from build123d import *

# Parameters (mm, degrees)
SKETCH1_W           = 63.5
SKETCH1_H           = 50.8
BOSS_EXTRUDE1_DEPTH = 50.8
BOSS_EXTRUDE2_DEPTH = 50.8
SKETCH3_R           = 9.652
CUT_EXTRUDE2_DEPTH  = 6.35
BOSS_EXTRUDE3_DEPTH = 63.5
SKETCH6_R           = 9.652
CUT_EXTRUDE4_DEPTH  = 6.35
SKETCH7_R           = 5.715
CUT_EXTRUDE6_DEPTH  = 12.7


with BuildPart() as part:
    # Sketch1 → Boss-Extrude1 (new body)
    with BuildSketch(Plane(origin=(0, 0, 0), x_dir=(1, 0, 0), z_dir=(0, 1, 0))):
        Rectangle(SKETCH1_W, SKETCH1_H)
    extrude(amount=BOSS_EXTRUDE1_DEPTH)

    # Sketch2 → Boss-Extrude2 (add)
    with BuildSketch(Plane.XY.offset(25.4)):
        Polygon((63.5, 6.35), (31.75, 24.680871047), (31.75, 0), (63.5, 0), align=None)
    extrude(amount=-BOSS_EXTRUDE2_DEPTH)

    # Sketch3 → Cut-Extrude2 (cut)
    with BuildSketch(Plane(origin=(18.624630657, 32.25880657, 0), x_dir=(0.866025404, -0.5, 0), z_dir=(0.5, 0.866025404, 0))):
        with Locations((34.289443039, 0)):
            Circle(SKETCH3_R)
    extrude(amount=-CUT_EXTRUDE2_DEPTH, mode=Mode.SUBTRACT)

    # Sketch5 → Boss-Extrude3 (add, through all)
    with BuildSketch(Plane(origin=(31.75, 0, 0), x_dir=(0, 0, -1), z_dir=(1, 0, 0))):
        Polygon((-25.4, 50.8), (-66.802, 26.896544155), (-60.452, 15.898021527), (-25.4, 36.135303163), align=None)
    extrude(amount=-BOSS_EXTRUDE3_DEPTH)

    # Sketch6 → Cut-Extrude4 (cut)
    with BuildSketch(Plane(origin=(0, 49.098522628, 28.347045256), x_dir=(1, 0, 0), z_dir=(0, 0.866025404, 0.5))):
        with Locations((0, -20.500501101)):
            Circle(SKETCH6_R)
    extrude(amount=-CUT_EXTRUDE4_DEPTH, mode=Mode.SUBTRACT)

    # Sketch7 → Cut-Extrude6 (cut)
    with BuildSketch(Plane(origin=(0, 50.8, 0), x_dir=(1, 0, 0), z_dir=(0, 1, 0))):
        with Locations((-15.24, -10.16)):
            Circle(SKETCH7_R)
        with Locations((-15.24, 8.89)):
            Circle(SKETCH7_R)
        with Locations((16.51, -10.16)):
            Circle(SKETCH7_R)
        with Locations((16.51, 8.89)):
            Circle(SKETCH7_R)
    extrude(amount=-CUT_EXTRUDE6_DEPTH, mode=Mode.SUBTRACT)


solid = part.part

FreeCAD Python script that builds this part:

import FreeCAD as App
import Part
import Sketcher

V = App.Vector
Q = App.Units.Quantity

doc = App.newDocument("Part")
body = doc.addObject("PartDesign::Body", "Body")

# Sketch on XZ plane
sketch1 = body.newObject("Sketcher::SketchObject", "Sketch")
sketch1.AttachmentSupport = (doc.getObject("XZ_Plane"), [""])
sketch1.MapMode = "FlatFace"
sketch1.addGeometry(Part.LineSegment(V(-32, -25, 0), V(-32, 25, 0)), False)
sketch1.addGeometry(Part.LineSegment(V(-32, 25, 0), V(32, 25, 0)), False)
sketch1.addGeometry(Part.LineSegment(V(32, 25, 0), V(32, -25, 0)), False)
sketch1.addGeometry(Part.LineSegment(V(32, -25, 0), V(-32, -25, 0)), False)
sketch1.addConstraint(Sketcher.Constraint("Coincident", 0, 2, 1, 1))
sketch1.addConstraint(Sketcher.Constraint("Coincident", 1, 2, 2, 1))
sketch1.addConstraint(Sketcher.Constraint("Coincident", 2, 2, 3, 1))
sketch1.addConstraint(Sketcher.Constraint("Coincident", 3, 2, 0, 1))
sketch1.addConstraint(Sketcher.Constraint("Vertical", 0))
sketch1.addConstraint(Sketcher.Constraint("Horizontal", 1))
sketch1.addConstraint(Sketcher.Constraint("Vertical", 2))
sketch1.addConstraint(Sketcher.Constraint("Horizontal", 3))
sketch1.addConstraint(Sketcher.Constraint("Symmetric", 0, 2, 2, 2, -1, 1))
sketch1.addConstraint(Sketcher.Constraint("DistanceY", 0, 1, 0, 2, Q("2 in")))
sketch1.addConstraint(Sketcher.Constraint("DistanceX", 1, 1, 1, 2, Q("2.5 in")))
pad1 = body.newObject("PartDesign::Pad", "Pad")
pad1.Profile = sketch1
pad1.Length = Q("2 in")
pad1.Reversed = True

# Sketch on XY plane
sketch2 = body.newObject("Sketcher::SketchObject", "Sketch001")
sketch2.AttachmentSupport = (doc.getObject("XY_Plane"), [""])
sketch2.MapMode = "FlatFace"
sketch2.AttachmentOffset = App.Placement(V(0, 0, 1 * 25.4), App.Rotation())
sketch2.addGeometry(Part.LineSegment(V(64, 6, 0), V(32, 25, 0)), False)
sketch2.addGeometry(Part.LineSegment(V(32, 25, 0), V(32, 0, 0)), False)
sketch2.addGeometry(Part.LineSegment(V(32, 0, 0), V(64, 0, 0)), False)
sketch2.addGeometry(Part.LineSegment(V(64, 0, 0), V(64, 6, 0)), False)
sketch2.addConstraint(Sketcher.Constraint("Coincident", 0, 2, 1, 1))
sketch2.addConstraint(Sketcher.Constraint("Coincident", 1, 2, 2, 1))
sketch2.addConstraint(Sketcher.Constraint("Coincident", 2, 2, 3, 1))
sketch2.addConstraint(Sketcher.Constraint("Coincident", 3, 2, 0, 1))
sketch2.addConstraint(Sketcher.Constraint("Vertical", 1))
sketch2.addConstraint(Sketcher.Constraint("Horizontal", 2))
sketch2.addConstraint(Sketcher.Constraint("Vertical", 3))
sketch2.addConstraint(Sketcher.Constraint("PointOnObject", 1, 2, -1))
sketch2.addConstraint(Sketcher.Constraint("Angle", 0, Q("150 deg")))
sketch2.addConstraint(Sketcher.Constraint("DistanceX", 2, 1, 2, 2, Q("1.25 in")))
sketch2.addConstraint(Sketcher.Constraint("DistanceY", 3, 1, 3, 2, Q("0.25 in")))
sketch2.addConstraint(Sketcher.Constraint("DistanceX", -1, 1, 2, 2, Q("2.5 in")))
pad2 = body.newObject("PartDesign::Pad", "Pad001")
pad2.Profile = sketch2
pad2.Length = Q("2 in")
pad2.Reversed = True

# Sketch on an angled plane
sketch3 = body.newObject("Sketcher::SketchObject", "Sketch002")
sketch3.Placement = App.Placement(V(18.624631, 32.258807, 0), App.Rotation(V(0.866025404, -0.5, 0), V(0, 0, -1), V(0.5, 0.866025404, 0), "ZXY"))
sketch3.addGeometry(Part.Circle(V(34, 0, 0), V(0, 0, 1), 10), False)
sketch3.addConstraint(Sketcher.Constraint("PointOnObject", 0, 3, -1))
sketch3.addConstraint(Sketcher.Constraint("Diameter", 0, Q("0.76 in")))
sketch3.addConstraint(Sketcher.Constraint("DistanceX", -1, 1, 0, 3, 34.289443))
pocket1 = body.newObject("PartDesign::Pocket", "Pocket")
pocket1.Profile = sketch3
pocket1.Length = Q("0.25 in")

# Sketch on YZ plane
sketch4 = body.newObject("Sketcher::SketchObject", "Sketch003")
sketch4.AttachmentSupport = (doc.getObject("YZ_Plane"), [""])
sketch4.MapMode = "FlatFace"
sketch4.AttachmentOffset = App.Placement(V(0, 0, 1.25 * 25.4), App.Rotation())
sketch4.addGeometry(Part.LineSegment(V(51, 25, 0), V(27, 67, 0)), False)
sketch4.addGeometry(Part.LineSegment(V(27, 67, 0), V(16, 60, 0)), False)
sketch4.addGeometry(Part.LineSegment(V(16, 60, 0), V(36, 25, 0)), False)
sketch4.addGeometry(Part.LineSegment(V(36, 25, 0), V(51, 25, 0)), False)
sketch4.addConstraint(Sketcher.Constraint("Coincident", 0, 2, 1, 1))
sketch4.addConstraint(Sketcher.Constraint("Coincident", 1, 2, 2, 1))
sketch4.addConstraint(Sketcher.Constraint("Coincident", 2, 2, 3, 1))
sketch4.addConstraint(Sketcher.Constraint("Coincident", 3, 2, 0, 1))
sketch4.addConstraint(Sketcher.Constraint("Horizontal", 3))
sketch4.addConstraint(Sketcher.Constraint("Perpendicular", 0, 1))
sketch4.addConstraint(Sketcher.Constraint("Perpendicular", 1, 2))
sketch4.addConstraint(Sketcher.Constraint("DistanceY", -1, 1, 2, 2, Q("1 in")))
sketch4.addConstraint(Sketcher.Constraint("DistanceX", -1, 1, 3, 2, Q("2 in")))
sketch4.addConstraint(Sketcher.Constraint("Angle", 0, Q("120 deg")))
sketch4.addConstraint(Sketcher.Constraint("Distance", 1, Q("0.5 in")))
sketch4.addConstraint(Sketcher.Constraint("DistanceY", -1, 1, 0, 2, Q("2.63 in")))
pad3 = body.newObject("PartDesign::Pad", "Pad002")
pad3.Profile = sketch4
pad3.Length = Q("2.5 in")
pad3.Reversed = True

# Sketch on an angled plane
sketch5 = body.newObject("Sketcher::SketchObject", "Sketch004")
sketch5.Placement = App.Placement(V(0, 49.098523, 28.347045), App.Rotation(V(1, 0, 0), V(0, 0.5, -0.866025404), V(0, 0.866025404, 0.5), "ZXY"))
sketch5.addGeometry(Part.Circle(V(0, -21, 0), V(0, 0, 1), 10), False)
sketch5.addConstraint(Sketcher.Constraint("PointOnObject", 0, 3, -2))
sketch5.addConstraint(Sketcher.Constraint("Diameter", 0, Q("0.76 in")))
sketch5.addConstraint(Sketcher.Constraint("DistanceY", 0, 3, -1, 1, 20.500501))
pocket2 = body.newObject("PartDesign::Pocket", "Pocket001")
pocket2.Profile = sketch5
pocket2.Length = Q("0.25 in")

# Sketch on XZ plane
sketch6 = body.newObject("Sketcher::SketchObject", "Sketch005")
sketch6.AttachmentSupport = (doc.getObject("XZ_Plane"), [""])
sketch6.MapMode = "FlatFace"
sketch6.AttachmentOffset = App.Placement(V(0, 0, -2 * 25.4), App.Rotation())
sketch6.addGeometry(Part.Circle(V(-15, 10, 0), V(0, 0, 1), 6), False)
sketch6.addGeometry(Part.Circle(V(-15, -9, 0), V(0, 0, 1), 6), False)
sketch6.addGeometry(Part.Circle(V(17, 10, 0), V(0, 0, 1), 6), False)
sketch6.addGeometry(Part.Circle(V(17, -9, 0), V(0, 0, 1), 6), False)
sketch6.addConstraint(Sketcher.Constraint("Equal", 0, 1))
sketch6.addConstraint(Sketcher.Constraint("Equal", 1, 2))
sketch6.addConstraint(Sketcher.Constraint("Equal", 2, 3))
sketch6.addConstraint(Sketcher.Constraint("Horizontal", 0, 3, 2, 3))
sketch6.addConstraint(Sketcher.Constraint("Horizontal", 1, 3, 3, 3))
sketch6.addConstraint(Sketcher.Constraint("Vertical", 0, 3, 1, 3))
sketch6.addConstraint(Sketcher.Constraint("Vertical", 2, 3, 3, 3))
sketch6.addConstraint(Sketcher.Constraint("Diameter", 0, Q("0.45 in")))
sketch6.addConstraint(Sketcher.Constraint("DistanceX", 0, 3, -1, 1, Q("0.6 in")))
sketch6.addConstraint(Sketcher.Constraint("DistanceY", -1, 1, 0, 3, Q("0.4 in")))
sketch6.addConstraint(Sketcher.Constraint("DistanceY", 1, 3, -1, 1, Q("0.35 in")))
sketch6.addConstraint(Sketcher.Constraint("DistanceX", -1, 1, 2, 3, Q("0.65 in")))
pocket3 = body.newObject("PartDesign::Pocket", "Pocket002")
pocket3.Profile = sketch6
pocket3.Length = Q("0.5 in")
pocket3.Reversed = True

doc.recompute()
